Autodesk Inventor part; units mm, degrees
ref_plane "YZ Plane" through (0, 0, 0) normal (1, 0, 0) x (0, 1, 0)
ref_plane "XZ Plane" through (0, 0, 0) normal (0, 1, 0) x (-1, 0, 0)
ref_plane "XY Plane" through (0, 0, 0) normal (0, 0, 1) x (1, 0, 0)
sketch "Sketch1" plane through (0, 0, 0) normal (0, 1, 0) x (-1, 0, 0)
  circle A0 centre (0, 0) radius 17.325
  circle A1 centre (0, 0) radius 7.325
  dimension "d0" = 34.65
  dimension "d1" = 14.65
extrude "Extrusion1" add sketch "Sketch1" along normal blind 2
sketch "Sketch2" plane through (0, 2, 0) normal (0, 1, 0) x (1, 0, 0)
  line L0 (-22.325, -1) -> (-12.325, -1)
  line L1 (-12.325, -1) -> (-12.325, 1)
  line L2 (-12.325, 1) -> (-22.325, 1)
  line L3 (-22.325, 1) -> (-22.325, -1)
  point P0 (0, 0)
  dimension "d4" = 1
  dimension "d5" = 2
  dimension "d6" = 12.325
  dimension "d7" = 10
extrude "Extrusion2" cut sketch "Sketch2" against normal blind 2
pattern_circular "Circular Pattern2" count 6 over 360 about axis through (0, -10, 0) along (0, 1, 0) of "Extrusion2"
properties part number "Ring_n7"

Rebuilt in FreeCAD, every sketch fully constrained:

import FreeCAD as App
import Part
import Sketcher


def add_polygon(sketch, points):
    """Adds a closed chain of lines whose ends are joined by coincident constraints."""
    first, n = sketch.GeometryCount, len(points)
    for a, b in zip(points, points[1:] + points[:1]):
        sketch.addGeometry(Part.LineSegment(App.Vector(*a, 0), App.Vector(*b, 0)), False)
    for i in range(n):
        sketch.addConstraint(Sketcher.Constraint("Coincident", first + i, 2, first + (i + 1) % n, 1))

doc = App.newDocument("Part")
body = doc.addObject("PartDesign::Body", "Body")

# Sketch on XZ plane
sketch1 = body.newObject("Sketcher::SketchObject", "Sketch")
sketch1.AttachmentSupport = (doc.getObject("XZ_Plane"), [""])
sketch1.MapMode = "FlatFace"
sketch1.addGeometry(Part.Circle(App.Vector(0, 0, 0), App.Vector(0, 0, 1), 17.325), False)
sketch1.addGeometry(Part.Circle(App.Vector(0, 0, 0), App.Vector(0, 0, 1), 7.325), False)
sketch1.addConstraint(Sketcher.Constraint("Coincident", 0, 3, -1, 1))
sketch1.addConstraint(Sketcher.Constraint("Coincident", 1, 3, -1, 1))
sketch1.addConstraint(Sketcher.Constraint("Diameter", 0, 34.65))
sketch1.addConstraint(Sketcher.Constraint("Diameter", 1, 14.65))
pad1 = body.newObject("PartDesign::Pad", "Pad")
pad1.Profile = sketch1
pad1.Length = 2
pad1.Reversed = True

# Sketch on XZ plane
sketch2 = body.newObject("Sketcher::SketchObject", "Sketch001")
sketch2.AttachmentSupport = (doc.getObject("XZ_Plane"), [""])
sketch2.MapMode = "FlatFace"
sketch2.AttachmentOffset = App.Placement(App.Vector(0, 0, -2), App.Rotation())
add_polygon(sketch2, [(-22.325, -1), (-22.325, 1), (-12.325, 1), (-12.325, -1)])  # lines 0-3
sketch2.addConstraint(Sketcher.Constraint("Vertical", 0))
sketch2.addConstraint(Sketcher.Constraint("Horizontal", 1))
sketch2.addConstraint(Sketcher.Constraint("Vertical", 2))
sketch2.addConstraint(Sketcher.Constraint("Horizontal", 3))
sketch2.addConstraint(Sketcher.Constraint("DistanceX", 1, 1, 1, 2, 10.0))
sketch2.addConstraint(Sketcher.Constraint("DistanceY", 0, 1, 0, 2, 2.0))
sketch2.addConstraint(Sketcher.Constraint("DistanceY", -1, 1, 0, 2, 1.0))
sketch2.addConstraint(Sketcher.Constraint("DistanceX", 1, 2, -1, 1, 12.325))
pocket1 = body.newObject("PartDesign::Pocket", "Pocket")
pocket1.Profile = sketch2
pocket1.Length = 2
pocket1.Reversed = True
doc.recompute()

polarpattern = body.newObject("PartDesign::PolarPattern", "PolarPattern")
polarpattern.Originals = [pocket1]
polarpattern.Axis = (doc.getObject("Y_Axis"), [""])
polarpattern.Angle = 360
polarpattern.Occurrences = 6
body.Tip = polarpattern

doc.recompute()
